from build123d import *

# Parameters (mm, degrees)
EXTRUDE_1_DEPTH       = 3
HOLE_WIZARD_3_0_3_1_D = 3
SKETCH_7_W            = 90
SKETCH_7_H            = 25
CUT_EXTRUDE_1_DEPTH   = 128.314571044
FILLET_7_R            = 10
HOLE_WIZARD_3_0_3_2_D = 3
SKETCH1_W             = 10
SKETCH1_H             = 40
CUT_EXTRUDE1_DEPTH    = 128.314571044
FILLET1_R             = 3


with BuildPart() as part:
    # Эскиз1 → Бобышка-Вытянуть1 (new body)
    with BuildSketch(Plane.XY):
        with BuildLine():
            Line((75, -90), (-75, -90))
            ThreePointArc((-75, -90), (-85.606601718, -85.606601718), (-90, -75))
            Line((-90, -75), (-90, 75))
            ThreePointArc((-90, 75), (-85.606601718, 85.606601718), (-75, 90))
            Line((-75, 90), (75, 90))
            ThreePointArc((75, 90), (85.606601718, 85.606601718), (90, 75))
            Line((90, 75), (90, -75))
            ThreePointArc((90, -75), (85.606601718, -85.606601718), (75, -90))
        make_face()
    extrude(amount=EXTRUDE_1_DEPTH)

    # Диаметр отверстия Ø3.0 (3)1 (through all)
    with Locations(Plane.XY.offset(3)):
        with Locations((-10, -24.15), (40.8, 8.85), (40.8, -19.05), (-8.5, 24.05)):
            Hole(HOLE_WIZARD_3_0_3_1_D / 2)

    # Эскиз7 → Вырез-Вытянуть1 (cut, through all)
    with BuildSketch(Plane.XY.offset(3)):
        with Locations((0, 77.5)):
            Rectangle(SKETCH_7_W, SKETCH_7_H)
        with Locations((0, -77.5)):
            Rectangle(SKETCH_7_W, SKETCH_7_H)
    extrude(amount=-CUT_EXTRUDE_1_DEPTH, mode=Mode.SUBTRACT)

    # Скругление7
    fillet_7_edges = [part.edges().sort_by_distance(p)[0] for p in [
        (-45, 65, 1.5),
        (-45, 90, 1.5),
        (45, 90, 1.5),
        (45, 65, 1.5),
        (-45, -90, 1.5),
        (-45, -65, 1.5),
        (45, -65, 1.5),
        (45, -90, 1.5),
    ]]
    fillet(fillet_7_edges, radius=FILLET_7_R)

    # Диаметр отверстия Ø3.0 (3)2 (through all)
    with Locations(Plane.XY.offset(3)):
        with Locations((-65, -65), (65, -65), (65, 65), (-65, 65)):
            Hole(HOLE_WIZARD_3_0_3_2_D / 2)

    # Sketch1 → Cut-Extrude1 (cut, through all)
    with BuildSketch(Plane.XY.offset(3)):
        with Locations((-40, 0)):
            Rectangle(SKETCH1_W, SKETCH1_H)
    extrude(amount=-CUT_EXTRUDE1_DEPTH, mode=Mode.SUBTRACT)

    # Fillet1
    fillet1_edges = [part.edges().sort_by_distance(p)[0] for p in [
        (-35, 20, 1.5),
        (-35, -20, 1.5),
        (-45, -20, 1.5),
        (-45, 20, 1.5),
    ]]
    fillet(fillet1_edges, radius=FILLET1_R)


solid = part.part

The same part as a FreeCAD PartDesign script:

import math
import FreeCAD as App
import Part
import Sketcher

V = App.Vector
Q = App.Units.Quantity


def edges_at(feature, points):
    """Names of the edges that pass closest to the given points."""
    edges = feature.Shape.Edges
    near = lambda p: min(range(len(edges)), key=lambda i: edges[i].distToShape(Part.Vertex(*p))[0])
    return sorted({f"Edge{near(p) + 1}" for p in points})

doc = App.newDocument("Part")
params = doc.addObject("Spreadsheet::Sheet", "Params")
for row, (alias, value) in enumerate([
    ("sketch1_radius", "15 mm"),
    ("sketch1_width", "150 mm"),
    ("pad1_length", "3 mm"),
    ("sketch2_diameter", "3 mm"),
    ("hole_diameter", "3 mm"),
    ("sketch3_width", "90 mm"),
    ("sketch3_height", "25 mm"),
    ("fillet_radius", "10 mm"),
    ("sketch4_diameter", "3 mm"),
    ("hole2_diameter", "3 mm"),
    ("sketch5_width", "10 mm"),
    ("sketch5_height", "40 mm"),
    ("fillet2_radius", "3 mm"),
], start=1):
    params.set(f"A{row}", alias)
    params.set(f"B{row}", "=" + value)
    params.setAlias(f"B{row}", alias)

body = doc.addObject("PartDesign::Body", "Body")

sketch1 = doc.addObject("Sketcher::SketchObject", "Sketch")
body.addObject(sketch1)
sketch1.AttachmentSupport = (doc.XY_Plane, [""])
sketch1.MapMode = "FlatFace"
sketch1.addGeometry([
    Part.LineSegment(V(-75, -90, 0), V(75, -90, 0)),
    Part.ArcOfCircle(Part.Circle(V(75, -75, 0), V(0, 0, 1), 15), math.radians(-90), math.radians(0)),
    Part.LineSegment(V(90, -75, 0), V(90, 75, 0)),
    Part.ArcOfCircle(Part.Circle(V(75, 75, 0), V(0, 0, 1), 15), math.radians(0), math.radians(90)),
    Part.LineSegment(V(75, 90, 0), V(-75, 90, 0)),
    Part.ArcOfCircle(Part.Circle(V(-75, 75, 0), V(0, 0, 1), 15), math.radians(90), math.radians(180)),
    Part.LineSegment(V(-90, 75, 0), V(-90, -75, 0)),
    Part.ArcOfCircle(Part.Circle(V(-75, -75, 0), V(0, 0, 1), 15), math.radians(180), math.radians(270)),
], False)
sketch1.addConstraint([
    Sketcher.Constraint("Tangent", 0, 2, 1, 1),
    Sketcher.Constraint("Tangent", 1, 2, 2, 1),
    Sketcher.Constraint("Tangent", 2, 2, 3, 1),
    Sketcher.Constraint("Tangent", 3, 2, 4, 1),
    Sketcher.Constraint("Tangent", 4, 2, 5, 1),
    Sketcher.Constraint("Tangent", 5, 2, 6, 1),
    Sketcher.Constraint("Tangent", 6, 2, 7, 1),
    Sketcher.Constraint("Tangent", 7, 2, 0, 1),
    Sketcher.Constraint("Horizontal", 0),
    Sketcher.Constraint("Vertical", 2),
    Sketcher.Constraint("Horizontal", 4),
    Sketcher.Constraint("Vertical", 6),
    Sketcher.Constraint("Equal", 1, 3),
    Sketcher.Constraint("Equal", 3, 5),
    Sketcher.Constraint("Equal", 5, 7),
    Sketcher.Constraint("Symmetric", 1, 3, 5, 3, -1, 1),
    Sketcher.Constraint("Equal", 4, 2),
    Sketcher.Constraint("Radius", 1, Q("15 mm")),
    Sketcher.Constraint("DistanceX", 0, 1, 0, 2, Q("150 mm")),
])
sketch1.setExpression("Constraints[17]", "Params.sketch1_radius")
sketch1.setExpression("Constraints[18]", "Params.sketch1_width")
pad1 = doc.addObject("PartDesign::Pad", "Pad")
body.addObject(pad1)
pad1.Profile = sketch1
pad1.setExpression("Length", "Params.pad1_length")

sketch2 = doc.addObject("Sketcher::SketchObject", "Sketch001")
body.addObject(sketch2)
sketch2.AttachmentSupport = (doc.XY_Plane, [""])
sketch2.MapMode = "FlatFace"
sketch2.AttachmentOffset = App.Placement(V(0, 0, 3), App.Rotation())
sketch2.addGeometry([
    Part.Circle(V(-10, -24.1, 0), V(0, 0, 1), 1.5),
    Part.Circle(V(40.8, 8.8, 0), V(0, 0, 1), 1.5),
    Part.Circle(V(40.8, -19.1, 0), V(0, 0, 1), 1.5),
    Part.Circle(V(-8.5, 24.1, 0), V(0, 0, 1), 1.5),
], False)
sketch2.addConstraint([
    Sketcher.Constraint("Equal", 0, 1),
    Sketcher.Constraint("Equal", 1, 2),
    Sketcher.Constraint("Equal", 2, 3),
    Sketcher.Constraint("Vertical", 1, 3, 2, 3),
    Sketcher.Constraint("Diameter", 0, Q("3 mm")),
    Sketcher.Constraint("DistanceX", 0, 3, -1, 1, Q("10 mm")),
    Sketcher.Constraint("DistanceY", 0, 3, 1, 3, Q("33 mm")),
    Sketcher.Constraint("DistanceX", -1, 1, 1, 3, Q("40.8 mm")),
    Sketcher.Constraint("DistanceX", 3, 3, -1, 1, Q("8.5 mm")),
    Sketcher.Constraint("DistanceY", 2, 3, 1, 3, Q("27.9 mm")),
    Sketcher.Constraint("DistanceY", 0, 3, 3, 3, Q("48.2 mm")),
    Sketcher.Constraint("DistanceY", 0, 3, -1, 1, Q("24.15 mm")),
])
sketch2.setExpression("Constraints[4]", "Params.sketch2_diameter")
doc.recompute()
hole = doc.addObject("PartDesign::Hole", "Hole")
body.addObject(hole)
hole.Profile = sketch2
hole.ThreadType = "None"
hole.setExpression("Diameter", "Params.hole_diameter")
hole.DepthType = "ThroughAll"

sketch3 = doc.addObject("Sketcher::SketchObject", "Sketch002")
body.addObject(sketch3)
sketch3.AttachmentSupport = (doc.XY_Plane, [""])
sketch3.MapMode = "FlatFace"
sketch3.AttachmentOffset = App.Placement(V(0, 0, 3), App.Rotation())
sketch3.addGeometry([
    Part.LineSegment(V(-45, 90, 0), V(-45, 65, 0)),
    Part.LineSegment(V(-45, 65, 0), V(45, 65, 0)),
    Part.LineSegment(V(45, 65, 0), V(45, 90, 0)),
    Part.LineSegment(V(45, 90, 0), V(-45, 90, 0)),
    Part.LineSegment(V(-45, -65, 0), V(-45, -90, 0)),
    Part.LineSegment(V(-45, -90, 0), V(45, -90, 0)),
    Part.LineSegment(V(45, -90, 0), V(45, -65, 0)),
    Part.LineSegment(V(45, -65, 0), V(-45, -65, 0)),
], False)
sketch3.addConstraint([
    Sketcher.Constraint("Coincident", 0, 2, 1, 1),
    Sketcher.Constraint("Coincident", 1, 2, 2, 1),
    Sketcher.Constraint("Coincident", 2, 2, 3, 1),
    Sketcher.Constraint("Coincident", 3, 2, 0, 1),
    Sketcher.Constraint("Coincident", 4, 2, 5, 1),
    Sketcher.Constraint("Coincident", 5, 2, 6, 1),
    Sketcher.Constraint("Coincident", 6, 2, 7, 1),
    Sketcher.Constraint("Coincident", 7, 2, 4, 1),
    Sketcher.Constraint("Vertical", 0),
    Sketcher.Constraint("Horizontal", 1),
    Sketcher.Constraint("Vertical", 2),
    Sketcher.Constraint("Horizontal", 3),
    Sketcher.Constraint("Vertical", 4),
    Sketcher.Constraint("Horizontal", 5),
    Sketcher.Constraint("Vertical", 6),
    Sketcher.Constraint("Horizontal", 7),
    Sketcher.Constraint("Symmetric", 2, 2, 4, 2, -1, 1),
    Sketcher.Constraint("Symmetric", 0, 2, 6, 2, -1, 1),
    Sketcher.Constraint("Vertical", 3, 2, 4, 2),
    Sketcher.Constraint("DistanceX", 1, 1, 1, 2, Q("90 mm")),
    Sketcher.Constraint("DistanceY", 0, 2, 0, 1, Q("25 mm")),
    Sketcher.Constraint("DistanceY", -1, 1, 0, 2, Q("65 mm")),
])
sketch3.setExpression("Constraints[19]", "Params.sketch3_width")
sketch3.setExpression("Constraints[20]", "Params.sketch3_height")
pocket1 = doc.addObject("PartDesign::Pocket", "Pocket")
body.addObject(pocket1)
pocket1.Profile = sketch3
pocket1.Type = "ThroughAll"
doc.recompute()

fillet = doc.addObject("PartDesign::Fillet", "Fillet")
body.addObject(fillet)
fillet.Base = (pocket1, edges_at(pocket1, [
    (-45, 65, 1.5),
    (-45, 90, 1.5),
    (45, 90, 1.5),
    (45, 65, 1.5),
    (-45, -90, 1.5),
    (-45, -65, 1.5),
    (45, -65, 1.5),
    (45, -90, 1.5),
]))
fillet.setExpression("Radius", "Params.fillet_radius")

sketch4 = doc.addObject("Sketcher::SketchObject", "Sketch003")
body.addObject(sketch4)
sketch4.AttachmentSupport = (doc.XY_Plane, [""])
sketch4.MapMode = "FlatFace"
sketch4.AttachmentOffset = App.Placement(V(0, 0, 3), App.Rotation())
sketch4.addGeometry([
    Part.Circle(V(-65, -65, 0), V(0, 0, 1), 1.5),
    Part.Circle(V(65, -65, 0), V(0, 0, 1), 1.5),
    Part.Circle(V(65, 65, 0), V(0, 0, 1), 1.5),
    Part.Circle(V(-65, 65, 0), V(0, 0, 1), 1.5),
], False)
sketch4.addConstraint([
    Sketcher.Constraint("Equal", 0, 1),
    Sketcher.Constraint("Equal", 1, 2),
    Sketcher.Constraint("Equal", 2, 3),
    Sketcher.Constraint("Symmetric", 0, 3, 2, 3, -1, 1),
    Sketcher.Constraint("Symmetric", 1, 3, 3, 3, -1, 1),
    Sketcher.Constraint("Symmetric", 0, 3, 1, 3, -2),
    Sketcher.Constraint("Diameter", 0, Q("3 mm")),
    Sketcher.Constraint("DistanceX", 0, 3, -1, 1, Q("65 mm")),
    Sketcher.Constraint("DistanceY", 0, 3, -1, 1, Q("65 mm")),
])
sketch4.setExpression("Constraints[6]", "Params.sketch4_diameter")
doc.recompute()
hole2 = doc.addObject("PartDesign::Hole", "Hole001")
body.addObject(hole2)
hole2.Profile = sketch4
hole2.ThreadType = "None"
hole2.setExpression("Diameter", "Params.hole2_diameter")
hole2.DepthType = "ThroughAll"

sketch5 = doc.addObject("Sketcher::SketchObject", "Sketch004")
body.addObject(sketch5)
sketch5.AttachmentSupport = (doc.XY_Plane, [""])
sketch5.MapMode = "FlatFace"
sketch5.AttachmentOffset = App.Placement(V(0, 0, 3), App.Rotation())
sketch5.addGeometry([
    Part.LineSegment(V(-45, 20, 0), V(-45, -20, 0)),
    Part.LineSegment(V(-45, -20, 0), V(-35, -20, 0)),
    Part.LineSegment(V(-35, -20, 0), V(-35, 20, 0)),
    Part.LineSegment(V(-35, 20, 0), V(-45, 20, 0)),
], False)
sketch5.addConstraint([
    Sketcher.Constraint("Coincident", 0, 2, 1, 1),
    Sketcher.Constraint("Coincident", 1, 2, 2, 1),
    Sketcher.Constraint("Coincident", 2, 2, 3, 1),
    Sketcher.Constraint("Coincident", 3, 2, 0, 1),
    Sketcher.Constraint("Vertical", 0),
    Sketcher.Constraint("Horizontal", 1),
    Sketcher.Constraint("Vertical", 2),
    Sketcher.Constraint("Horizontal", 3),
    Sketcher.Constraint("DistanceX", 1, 1, 1, 2, Q("10 mm")),
    Sketcher.Constraint("DistanceY", 0, 2, 0, 1, Q("40 mm")),
    Sketcher.Constraint("DistanceX", 0, 2, -1, 1, Q("45 mm")),
    Sketcher.Constraint("DistanceY", 0, 2, -1, 1, Q("20 mm")),
])
sketch5.setExpression("Constraints[8]", "Params.sketch5_width")
sketch5.setExpression("Constraints[9]", "Params.sketch5_height")
pocket2 = doc.addObject("PartDesign::Pocket", "Pocket001")
body.addObject(pocket2)
pocket2.Profile = sketch5
pocket2.Type = "ThroughAll"
doc.recompute()

fillet2 = doc.addObject("PartDesign::Fillet", "Fillet001")
body.addObject(fillet2)
fillet2.Base = (pocket2, edges_at(pocket2, [
    (-35, 20, 1.5),
    (-35, -20, 1.5),
    (-45, -20, 1.5),
    (-45, 20, 1.5),
]))
fillet2.setExpression("Radius", "Params.fillet2_radius")

doc.recompute()
